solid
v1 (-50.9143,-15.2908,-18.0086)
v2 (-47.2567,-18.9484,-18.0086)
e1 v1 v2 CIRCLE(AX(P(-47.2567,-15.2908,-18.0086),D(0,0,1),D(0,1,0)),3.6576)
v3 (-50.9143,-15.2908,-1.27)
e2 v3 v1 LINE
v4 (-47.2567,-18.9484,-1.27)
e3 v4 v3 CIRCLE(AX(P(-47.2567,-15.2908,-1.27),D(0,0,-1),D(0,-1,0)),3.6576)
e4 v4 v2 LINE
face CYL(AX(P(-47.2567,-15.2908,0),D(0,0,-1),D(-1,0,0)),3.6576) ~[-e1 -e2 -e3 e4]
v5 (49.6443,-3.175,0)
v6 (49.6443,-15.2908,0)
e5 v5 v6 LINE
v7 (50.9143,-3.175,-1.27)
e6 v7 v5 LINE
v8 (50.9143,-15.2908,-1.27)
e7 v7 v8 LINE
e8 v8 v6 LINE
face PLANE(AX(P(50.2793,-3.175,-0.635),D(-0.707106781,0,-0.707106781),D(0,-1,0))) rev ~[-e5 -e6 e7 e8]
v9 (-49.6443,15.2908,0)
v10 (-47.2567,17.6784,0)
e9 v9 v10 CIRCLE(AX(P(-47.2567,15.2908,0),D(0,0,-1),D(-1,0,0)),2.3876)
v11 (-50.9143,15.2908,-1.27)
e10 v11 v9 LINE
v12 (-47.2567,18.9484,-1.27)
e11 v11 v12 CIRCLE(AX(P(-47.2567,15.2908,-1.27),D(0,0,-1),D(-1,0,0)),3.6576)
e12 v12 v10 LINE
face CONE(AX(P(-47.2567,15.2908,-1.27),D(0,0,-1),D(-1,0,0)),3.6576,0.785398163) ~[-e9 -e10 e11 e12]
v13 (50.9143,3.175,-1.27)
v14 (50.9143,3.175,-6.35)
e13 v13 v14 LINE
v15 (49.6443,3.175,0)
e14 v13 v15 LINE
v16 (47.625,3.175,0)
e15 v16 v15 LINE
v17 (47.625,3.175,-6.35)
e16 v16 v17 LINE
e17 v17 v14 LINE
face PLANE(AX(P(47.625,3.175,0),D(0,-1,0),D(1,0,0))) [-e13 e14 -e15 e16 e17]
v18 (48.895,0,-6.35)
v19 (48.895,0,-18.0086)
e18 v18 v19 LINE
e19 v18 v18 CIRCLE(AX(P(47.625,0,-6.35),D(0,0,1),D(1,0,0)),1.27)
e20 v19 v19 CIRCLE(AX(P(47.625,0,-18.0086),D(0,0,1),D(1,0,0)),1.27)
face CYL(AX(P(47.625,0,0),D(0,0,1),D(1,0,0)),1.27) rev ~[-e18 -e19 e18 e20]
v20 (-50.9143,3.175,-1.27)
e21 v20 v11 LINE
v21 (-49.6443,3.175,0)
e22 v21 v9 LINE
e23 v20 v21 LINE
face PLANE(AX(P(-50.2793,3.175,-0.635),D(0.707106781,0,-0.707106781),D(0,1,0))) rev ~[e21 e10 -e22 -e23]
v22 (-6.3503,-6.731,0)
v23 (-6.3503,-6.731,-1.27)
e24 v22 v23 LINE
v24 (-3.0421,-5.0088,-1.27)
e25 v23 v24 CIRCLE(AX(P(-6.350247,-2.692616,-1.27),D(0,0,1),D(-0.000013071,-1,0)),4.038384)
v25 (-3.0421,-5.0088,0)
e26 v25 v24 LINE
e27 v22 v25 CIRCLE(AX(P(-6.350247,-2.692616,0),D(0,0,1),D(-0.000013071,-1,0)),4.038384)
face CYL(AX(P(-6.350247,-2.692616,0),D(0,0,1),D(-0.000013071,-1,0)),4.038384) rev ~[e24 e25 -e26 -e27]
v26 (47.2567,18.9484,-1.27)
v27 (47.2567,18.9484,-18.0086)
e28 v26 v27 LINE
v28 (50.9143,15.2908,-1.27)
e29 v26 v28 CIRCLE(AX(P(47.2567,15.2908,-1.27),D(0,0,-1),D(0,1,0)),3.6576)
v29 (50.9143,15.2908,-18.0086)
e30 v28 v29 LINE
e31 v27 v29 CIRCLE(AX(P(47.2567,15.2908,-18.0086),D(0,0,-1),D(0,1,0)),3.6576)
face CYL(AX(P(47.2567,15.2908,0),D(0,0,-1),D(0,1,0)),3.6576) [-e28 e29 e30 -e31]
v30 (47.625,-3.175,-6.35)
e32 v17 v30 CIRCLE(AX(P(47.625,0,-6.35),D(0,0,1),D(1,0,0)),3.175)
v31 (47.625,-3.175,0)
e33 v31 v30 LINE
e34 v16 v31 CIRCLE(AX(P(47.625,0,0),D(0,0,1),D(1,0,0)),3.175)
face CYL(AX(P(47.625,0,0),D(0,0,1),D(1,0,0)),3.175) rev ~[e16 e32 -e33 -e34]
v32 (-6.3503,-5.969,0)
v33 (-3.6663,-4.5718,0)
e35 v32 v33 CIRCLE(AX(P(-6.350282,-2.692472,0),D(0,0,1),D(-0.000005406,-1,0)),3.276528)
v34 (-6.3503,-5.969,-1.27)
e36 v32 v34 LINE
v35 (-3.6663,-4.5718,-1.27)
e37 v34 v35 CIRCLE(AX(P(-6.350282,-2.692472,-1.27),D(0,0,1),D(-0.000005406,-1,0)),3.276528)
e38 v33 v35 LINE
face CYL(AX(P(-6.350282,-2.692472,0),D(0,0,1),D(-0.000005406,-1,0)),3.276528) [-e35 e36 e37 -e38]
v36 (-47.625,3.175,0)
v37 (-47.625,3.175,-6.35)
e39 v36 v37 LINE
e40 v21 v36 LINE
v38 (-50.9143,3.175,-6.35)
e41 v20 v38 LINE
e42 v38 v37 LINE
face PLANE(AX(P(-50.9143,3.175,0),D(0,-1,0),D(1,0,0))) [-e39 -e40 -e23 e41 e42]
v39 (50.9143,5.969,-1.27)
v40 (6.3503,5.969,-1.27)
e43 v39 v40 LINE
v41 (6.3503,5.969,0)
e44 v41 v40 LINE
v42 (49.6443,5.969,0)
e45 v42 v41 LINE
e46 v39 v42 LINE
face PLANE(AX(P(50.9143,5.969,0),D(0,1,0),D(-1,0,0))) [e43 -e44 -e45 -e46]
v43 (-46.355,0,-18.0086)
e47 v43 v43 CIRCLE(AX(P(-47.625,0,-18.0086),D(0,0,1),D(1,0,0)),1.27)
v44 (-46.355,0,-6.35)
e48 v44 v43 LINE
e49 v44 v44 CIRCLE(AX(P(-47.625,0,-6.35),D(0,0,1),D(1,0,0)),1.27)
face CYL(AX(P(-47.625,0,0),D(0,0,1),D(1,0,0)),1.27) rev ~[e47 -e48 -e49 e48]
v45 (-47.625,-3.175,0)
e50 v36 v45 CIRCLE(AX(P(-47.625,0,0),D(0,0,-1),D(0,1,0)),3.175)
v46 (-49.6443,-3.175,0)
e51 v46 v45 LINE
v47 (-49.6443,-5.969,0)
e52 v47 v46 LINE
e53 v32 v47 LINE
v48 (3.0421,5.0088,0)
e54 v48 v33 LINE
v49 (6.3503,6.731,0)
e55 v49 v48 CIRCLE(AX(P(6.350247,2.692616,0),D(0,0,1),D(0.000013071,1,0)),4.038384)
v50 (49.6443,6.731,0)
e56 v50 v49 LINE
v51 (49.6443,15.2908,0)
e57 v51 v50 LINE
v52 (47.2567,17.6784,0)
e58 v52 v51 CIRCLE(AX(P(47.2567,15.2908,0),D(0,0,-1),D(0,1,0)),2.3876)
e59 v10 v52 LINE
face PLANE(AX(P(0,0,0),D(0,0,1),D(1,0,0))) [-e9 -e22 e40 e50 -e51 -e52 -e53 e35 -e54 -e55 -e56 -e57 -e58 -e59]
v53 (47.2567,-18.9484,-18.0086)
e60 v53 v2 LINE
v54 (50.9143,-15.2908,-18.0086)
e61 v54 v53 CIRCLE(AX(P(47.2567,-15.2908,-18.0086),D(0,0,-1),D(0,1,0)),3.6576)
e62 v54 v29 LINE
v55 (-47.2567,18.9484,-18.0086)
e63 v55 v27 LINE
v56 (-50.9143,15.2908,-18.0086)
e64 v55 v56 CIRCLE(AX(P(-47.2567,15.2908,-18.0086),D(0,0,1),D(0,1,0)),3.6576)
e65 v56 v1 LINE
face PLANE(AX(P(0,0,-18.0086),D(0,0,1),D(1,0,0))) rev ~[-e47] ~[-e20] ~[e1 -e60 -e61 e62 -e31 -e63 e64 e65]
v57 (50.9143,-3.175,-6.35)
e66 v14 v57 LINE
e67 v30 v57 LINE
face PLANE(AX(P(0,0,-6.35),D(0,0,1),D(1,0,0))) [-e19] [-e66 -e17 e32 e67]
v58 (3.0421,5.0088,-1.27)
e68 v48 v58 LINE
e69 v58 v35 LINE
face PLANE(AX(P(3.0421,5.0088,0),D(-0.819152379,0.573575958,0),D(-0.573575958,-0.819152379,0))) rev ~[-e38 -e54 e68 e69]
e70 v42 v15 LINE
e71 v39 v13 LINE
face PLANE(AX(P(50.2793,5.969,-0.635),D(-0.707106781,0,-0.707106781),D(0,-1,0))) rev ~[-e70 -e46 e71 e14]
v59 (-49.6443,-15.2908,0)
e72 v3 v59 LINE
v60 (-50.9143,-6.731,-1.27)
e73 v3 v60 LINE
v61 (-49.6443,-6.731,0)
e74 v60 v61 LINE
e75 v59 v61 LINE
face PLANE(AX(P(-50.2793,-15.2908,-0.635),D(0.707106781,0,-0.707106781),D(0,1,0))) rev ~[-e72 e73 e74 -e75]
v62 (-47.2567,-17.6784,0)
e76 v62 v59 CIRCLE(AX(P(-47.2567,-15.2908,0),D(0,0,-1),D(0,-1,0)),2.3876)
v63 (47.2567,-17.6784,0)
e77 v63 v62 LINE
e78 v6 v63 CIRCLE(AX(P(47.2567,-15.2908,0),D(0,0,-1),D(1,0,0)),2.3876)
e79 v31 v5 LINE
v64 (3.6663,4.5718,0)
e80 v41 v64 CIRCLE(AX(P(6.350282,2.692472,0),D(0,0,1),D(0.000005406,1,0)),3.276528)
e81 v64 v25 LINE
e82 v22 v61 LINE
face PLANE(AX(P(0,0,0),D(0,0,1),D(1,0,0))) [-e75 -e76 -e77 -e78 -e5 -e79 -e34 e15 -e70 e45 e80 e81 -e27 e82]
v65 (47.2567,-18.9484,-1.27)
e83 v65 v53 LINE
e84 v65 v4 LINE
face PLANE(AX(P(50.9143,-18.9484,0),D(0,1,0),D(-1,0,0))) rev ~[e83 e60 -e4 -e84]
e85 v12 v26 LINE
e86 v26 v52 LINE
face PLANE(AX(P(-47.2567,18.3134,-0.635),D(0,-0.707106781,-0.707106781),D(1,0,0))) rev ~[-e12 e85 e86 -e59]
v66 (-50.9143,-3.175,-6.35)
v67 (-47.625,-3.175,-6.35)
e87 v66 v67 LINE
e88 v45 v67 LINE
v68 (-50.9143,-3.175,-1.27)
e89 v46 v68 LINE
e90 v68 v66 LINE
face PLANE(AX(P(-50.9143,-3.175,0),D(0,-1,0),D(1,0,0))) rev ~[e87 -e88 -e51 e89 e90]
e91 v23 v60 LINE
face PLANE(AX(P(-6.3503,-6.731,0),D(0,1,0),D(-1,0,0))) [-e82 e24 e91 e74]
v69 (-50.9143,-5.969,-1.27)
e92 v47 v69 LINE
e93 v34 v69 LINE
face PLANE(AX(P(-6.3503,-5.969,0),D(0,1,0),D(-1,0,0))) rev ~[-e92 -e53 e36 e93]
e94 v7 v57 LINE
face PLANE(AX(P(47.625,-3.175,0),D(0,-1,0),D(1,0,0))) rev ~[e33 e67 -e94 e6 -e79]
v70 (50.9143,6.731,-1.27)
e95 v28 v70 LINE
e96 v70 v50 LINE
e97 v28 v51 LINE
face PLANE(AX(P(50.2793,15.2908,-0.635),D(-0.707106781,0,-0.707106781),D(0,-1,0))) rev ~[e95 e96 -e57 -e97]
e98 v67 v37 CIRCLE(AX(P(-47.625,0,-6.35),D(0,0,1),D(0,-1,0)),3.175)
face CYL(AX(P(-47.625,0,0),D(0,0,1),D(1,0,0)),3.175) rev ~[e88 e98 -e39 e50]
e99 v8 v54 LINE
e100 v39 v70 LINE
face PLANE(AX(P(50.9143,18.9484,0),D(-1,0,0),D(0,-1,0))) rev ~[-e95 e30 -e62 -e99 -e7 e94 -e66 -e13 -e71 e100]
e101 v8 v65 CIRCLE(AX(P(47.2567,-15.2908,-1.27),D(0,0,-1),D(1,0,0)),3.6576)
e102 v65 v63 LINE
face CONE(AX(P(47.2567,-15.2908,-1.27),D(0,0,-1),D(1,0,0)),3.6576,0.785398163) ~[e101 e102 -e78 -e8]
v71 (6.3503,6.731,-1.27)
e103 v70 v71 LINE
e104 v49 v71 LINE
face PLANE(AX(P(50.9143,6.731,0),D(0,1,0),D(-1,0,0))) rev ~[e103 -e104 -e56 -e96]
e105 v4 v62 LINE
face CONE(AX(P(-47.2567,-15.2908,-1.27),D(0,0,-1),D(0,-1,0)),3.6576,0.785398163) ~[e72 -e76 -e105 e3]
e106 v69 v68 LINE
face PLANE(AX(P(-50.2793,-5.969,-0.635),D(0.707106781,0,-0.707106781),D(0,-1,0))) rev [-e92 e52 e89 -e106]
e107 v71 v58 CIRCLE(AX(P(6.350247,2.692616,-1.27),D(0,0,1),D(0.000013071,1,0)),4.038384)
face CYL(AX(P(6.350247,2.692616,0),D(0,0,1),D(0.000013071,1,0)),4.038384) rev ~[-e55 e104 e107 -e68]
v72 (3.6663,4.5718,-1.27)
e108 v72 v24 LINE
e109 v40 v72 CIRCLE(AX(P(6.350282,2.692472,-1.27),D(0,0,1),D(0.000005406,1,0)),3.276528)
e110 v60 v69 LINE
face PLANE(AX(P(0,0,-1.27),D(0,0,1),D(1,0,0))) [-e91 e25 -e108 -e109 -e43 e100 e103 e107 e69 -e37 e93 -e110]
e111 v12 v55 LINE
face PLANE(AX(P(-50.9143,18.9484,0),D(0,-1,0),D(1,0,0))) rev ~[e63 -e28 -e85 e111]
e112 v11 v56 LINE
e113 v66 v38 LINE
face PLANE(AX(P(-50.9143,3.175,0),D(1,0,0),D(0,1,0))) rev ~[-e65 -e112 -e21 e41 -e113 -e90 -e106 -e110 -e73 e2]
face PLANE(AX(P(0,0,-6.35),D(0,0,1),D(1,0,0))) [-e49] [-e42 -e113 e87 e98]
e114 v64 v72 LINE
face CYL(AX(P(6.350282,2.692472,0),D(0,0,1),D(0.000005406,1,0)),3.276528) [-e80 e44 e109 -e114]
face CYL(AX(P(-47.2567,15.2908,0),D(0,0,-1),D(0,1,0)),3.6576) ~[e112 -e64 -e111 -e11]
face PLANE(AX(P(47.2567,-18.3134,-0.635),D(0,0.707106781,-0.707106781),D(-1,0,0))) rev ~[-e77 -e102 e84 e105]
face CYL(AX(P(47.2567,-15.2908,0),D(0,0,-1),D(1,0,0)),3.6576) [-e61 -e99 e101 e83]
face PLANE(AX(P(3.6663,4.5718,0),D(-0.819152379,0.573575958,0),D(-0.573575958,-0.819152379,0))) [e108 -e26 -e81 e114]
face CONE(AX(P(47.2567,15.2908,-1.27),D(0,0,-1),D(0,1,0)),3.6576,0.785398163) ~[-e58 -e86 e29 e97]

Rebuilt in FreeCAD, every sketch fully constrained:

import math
import FreeCAD as App
import Part
import Sketcher
from FreeCAD import Vector
Q = App.Units.Quantity


def edges_at(feature, points):
    """Names of the edges that pass closest to the given points."""
    edges = feature.Shape.Edges
    near = lambda p: min(range(len(edges)), key=lambda i: edges[i].distToShape(Part.Vertex(*p))[0])
    return sorted({f"Edge{near(p) + 1}" for p in points})

doc = App.newDocument("Part")
params = doc.addObject("Spreadsheet::Sheet", "Params")
for row, (alias, value) in enumerate([
    ("sketch1_width", "4.009 in"),
    ("sketch1_height", "1.492 in"),
    ("pad1_length", "0.709 in"),
    ("fillet_radius", "0.144 in"),
    ("sketch2_radius", "0.159 in"),
    ("sketch2_radius2", "0.129 in"),
    ("pocket1_length", "0.05 in"),
    ("sketch3_diameter", "0.1 in"),
    ("sketch4_diameter", "0.1 in"),
    ("sketch4_radius", "0.125 in"),
    ("pocket3_length", "0.25 in"),
    ("chamfer_size", "0.05 in"),
], start=1):
    params.set(f"A{row}", alias)
    params.set(f"B{row}", "=" + value)
    params.setAlias(f"B{row}", alias)

body = doc.addObject("PartDesign::Body", "Body")

sketch1 = body.newObject("Sketcher::SketchObject", "Sketch")
sketch1.AttachmentSupport = (doc.getObject("XY_Plane"), [""])
sketch1.MapMode = "FlatFace"
sketch1.addGeometry([
    Part.LineSegment(Vector(51, 19, 0), Vector(-51, 19, 0)),
    Part.LineSegment(Vector(-51, 19, 0), Vector(-51, -19, 0)),
    Part.LineSegment(Vector(-51, -19, 0), Vector(51, -19, 0)),
    Part.LineSegment(Vector(51, -19, 0), Vector(51, 19, 0)),
], False)
sketch1.addConstraint([
    Sketcher.Constraint("Coincident", 0, 2, 1, 1),
    Sketcher.Constraint("Coincident", 1, 2, 2, 1),
    Sketcher.Constraint("Coincident", 2, 2, 3, 1),
    Sketcher.Constraint("Coincident", 3, 2, 0, 1),
    Sketcher.Constraint("Horizontal", 0),
    Sketcher.Constraint("Vertical", 1),
    Sketcher.Constraint("Horizontal", 2),
    Sketcher.Constraint("Vertical", 3),
    Sketcher.Constraint("Symmetric", 0, 2, 2, 2, -1, 1),
    Sketcher.Constraint("DistanceX", 0, 2, 0, 1, Q("4.009 in")),
    Sketcher.Constraint("DistanceY", 1, 2, 1, 1, Q("1.492 in")),
])
sketch1.setExpression("Constraints[9]", "Params.sketch1_width")
sketch1.setExpression("Constraints[10]", "Params.sketch1_height")
pad1 = body.newObject("PartDesign::Pad", "Pad")
pad1.Profile = sketch1
pad1.setExpression("Length", "Params.pad1_length")
pad1.Reversed = True
doc.recompute()

fillet = body.newObject("PartDesign::Fillet", "Fillet")
fillet.Base = (pad1, edges_at(pad1, [
    (-50.914, 18.948, -9.004),
    (-50.914, -18.948, -9.004),
    (50.914, 18.948, -9.004),
    (50.914, -18.948, -9.004),
]))
fillet.setExpression("Radius", "Params.fillet_radius")

sketch2 = body.newObject("Sketcher::SketchObject", "Sketch001")
sketch2.AttachmentSupport = (doc.getObject("XY_Plane"), [""])
sketch2.MapMode = "FlatFace"
sketch2.addGeometry([
    Part.LineSegment(Vector(50.9, 6.7, 0), Vector(6.4, 6.7, 0)),
    Part.ArcOfCircle(Part.Circle(Vector(6.4, 2.7, 0), Vector(0, 0, 1), 4), math.radians(90), math.radians(145)),
    Part.LineSegment(Vector(3, 5, 0), Vector(-3.7, -4.6, 0)),
    Part.ArcOfCircle(Part.Circle(Vector(-6.4, -2.7, 0), Vector(0, 0, 1), 3.3), math.radians(-90), math.radians(-35)),
    Part.LineSegment(Vector(-6.4, -6, 0), Vector(-50.9, -6, 0)),
    Part.LineSegment(Vector(-50.9, -6, 0), Vector(-50.9, -6.7, 0)),
    Part.LineSegment(Vector(-50.9, -6.7, 0), Vector(-6.4, -6.7, 0)),
    Part.ArcOfCircle(Part.Circle(Vector(-6.4, -2.7, 0), Vector(0, 0, 1), 4), math.radians(-90), math.radians(-35)),
    Part.LineSegment(Vector(-3, -5, 0), Vector(3.7, 4.6, 0)),
    Part.ArcOfCircle(Part.Circle(Vector(6.4, 2.7, 0), Vector(0, 0, 1), 3.3), math.radians(90), math.radians(145)),
    Part.LineSegment(Vector(6.4, 6, 0), Vector(50.9, 6, 0)),
    Part.LineSegment(Vector(50.9, 6, 0), Vector(50.9, 6.7, 0)),
], False)
sketch2.addConstraint([
    Sketcher.Constraint("Tangent", 0, 2, 1, 1),
    Sketcher.Constraint("Tangent", 1, 2, 2, 1),
    Sketcher.Constraint("Tangent", 2, 2, 3, 2),
    Sketcher.Constraint("Tangent", 3, 1, 4, 1),
    Sketcher.Constraint("Coincident", 4, 2, 5, 1),
    Sketcher.Constraint("Coincident", 5, 2, 6, 1),
    Sketcher.Constraint("Tangent", 6, 2, 7, 1),
    Sketcher.Constraint("Tangent", 7, 2, 8, 1),
    Sketcher.Constraint("Tangent", 8, 2, 9, 2),
    Sketcher.Constraint("Tangent", 9, 1, 10, 1),
    Sketcher.Constraint("Coincident", 10, 2, 11, 1),
    Sketcher.Constraint("Coincident", 11, 2, 0, 1),
    Sketcher.Constraint("Horizontal", 0),
    Sketcher.Constraint("Horizontal", 4),
    Sketcher.Constraint("Vertical", 5),
    Sketcher.Constraint("Horizontal", 6),
    Sketcher.Constraint("Horizontal", 10),
    Sketcher.Constraint("Vertical", 11),
    Sketcher.Constraint("Coincident", 7, 3, 3, 3),
    Sketcher.Constraint("Coincident", 9, 3, 1, 3),
    Sketcher.Constraint("Equal", 1, 7),
    Sketcher.Constraint("Equal", 3, 9),
    Sketcher.Constraint("Symmetric", 1, 3, 3, 3, -1, 1),
    Sketcher.Constraint("Equal", 0, 4),
    Sketcher.Constraint("Angle", 8, Q("55 deg")),
    Sketcher.Constraint("DistanceX", -1, 1, 1, 3, Q("0.25 in")),
    Sketcher.Constraint("Radius", 1, Q("0.159 in")),
    Sketcher.Constraint("Radius", 3, Q("0.129 in")),
    Sketcher.Constraint("DistanceX", 0, 2, 0, 1, Q("1.7545 in")),
])
sketch2.setExpression("Constraints[26]", "Params.sketch2_radius")
sketch2.setExpression("Constraints[27]", "Params.sketch2_radius2")
pocket1 = body.newObject("PartDesign::Pocket", "Pocket")
pocket1.Profile = sketch2
pocket1.setExpression("Length", "Params.pocket1_length")

sketch3 = body.newObject("Sketcher::SketchObject", "Sketch002")
sketch3.AttachmentSupport = (doc.getObject("XY_Plane"), [""])
sketch3.MapMode = "FlatFace"
sketch3.addGeometry([
    Part.Circle(Vector(-47.6, 0, 0), Vector(0, 0, 1), 1.3),
    Part.Circle(Vector(47.6, 0, 0), Vector(0, 0, 1), 1.3),
], False)
sketch3.addConstraint([
    Sketcher.Constraint("Equal", 0, 1),
    Sketcher.Constraint("Symmetric", 0, 3, 1, 3, -1, 1),
    Sketcher.Constraint("PointOnObject", 0, 3, -1),
    Sketcher.Constraint("Diameter", 0, Q("0.1 in")),
    Sketcher.Constraint("DistanceX", 0, 3, 1, 3, Q("3.75 in")),
])
sketch3.setExpression("Constraints[3]", "Params.sketch3_diameter")
pocket2 = body.newObject("PartDesign::Pocket", "Pocket001")
pocket2.Profile = sketch3
pocket2.Type = "ThroughAll"

sketch4 = body.newObject("Sketcher::SketchObject", "Sketch003")
sketch4.AttachmentSupport = (doc.getObject("XY_Plane"), [""])
sketch4.MapMode = "FlatFace"
sketch4.addGeometry([
    Part.LineSegment(Vector(-47.6, 3.2, 0), Vector(-50.9, 3.2, 0)),
    Part.LineSegment(Vector(-50.9, 3.2, 0), Vector(-50.9, -3.2, 0)),
    Part.LineSegment(Vector(-50.9, -3.2, 0), Vector(-47.6, -3.2, 0)),
    Part.ArcOfCircle(Part.Circle(Vector(-47.6, 0, 0), Vector(0, 0, 1), 3.2), math.radians(-90), math.radians(90)),
    Part.Circle(Vector(-47.6, 0, 0), Vector(0, 0, 1), 1.3),
    Part.LineSegment(Vector(50.9, -3.2, 0), Vector(50.9, 3.2, 0)),
    Part.LineSegment(Vector(50.9, 3.2, 0), Vector(47.6, 3.2, 0)),
    Part.ArcOfCircle(Part.Circle(Vector(47.6, 0, 0), Vector(0, 0, 1), 3.2), math.radians(90), math.radians(270)),
    Part.LineSegment(Vector(47.6, -3.2, 0), Vector(50.9, -3.2, 0)),
], False)
sketch4.addConstraint([
    Sketcher.Constraint("Coincident", 0, 2, 1, 1),
    Sketcher.Constraint("Coincident", 1, 2, 2, 1),
    Sketcher.Constraint("Tangent", 2, 2, 3, 1),
    Sketcher.Constraint("Tangent", 3, 2, 0, 1),
    Sketcher.Constraint("Coincident", 5, 2, 6, 1),
    Sketcher.Constraint("Tangent", 6, 2, 7, 1),
    Sketcher.Constraint("Tangent", 7, 2, 8, 1),
    Sketcher.Constraint("Coincident", 8, 2, 5, 1),
    Sketcher.Constraint("Horizontal", 0),
    Sketcher.Constraint("Vertical", 1),
    Sketcher.Constraint("Horizontal", 2),
    Sketcher.Constraint("Vertical", 5),
    Sketcher.Constraint("Horizontal", 6),
    Sketcher.Constraint("Horizontal", 8),
    Sketcher.Constraint("Coincident", 4, 3, 3, 3),
    Sketcher.Constraint("Equal", 3, 7),
    Sketcher.Constraint("Symmetric", 3, 3, 7, 3, -1, 1),
    Sketcher.Constraint("Symmetric", 0, 2, 5, 2, -2),
    Sketcher.Constraint("Diameter", 4, Q("0.1 in")),
    Sketcher.Constraint("Radius", 3, Q("0.125 in")),
    Sketcher.Constraint("DistanceX", 3, 3, 7, 3, Q("3.75 in")),
    Sketcher.Constraint("DistanceX", 0, 2, 0, 1, Q("0.1295 in")),
])
sketch4.setExpression("Constraints[18]", "Params.sketch4_diameter")
sketch4.setExpression("Constraints[19]", "Params.sketch4_radius")
pocket3 = body.newObject("PartDesign::Pocket", "Pocket002")
pocket3.Profile = sketch4
pocket3.setExpression("Length", "Params.pocket3_length")
doc.recompute()

chamfer = body.newObject("PartDesign::Chamfer", "Chamfer")
chamfer.Base = (pocket3, edges_at(pocket3, [
    (0, 18.948, 0),
    (-49.843, 17.877, 0),
    (-50.914, 9.233, 0),
    (49.843, 17.877, 0),
    (50.914, 11.011, 0),
    (0, -18.948, 0),
    (49.843, -17.877, 0),
    (50.914, -9.233, 0),
    (-49.843, -17.877, 0),
    (-50.914, -11.011, 0),
    (-50.914, -4.572, 0),
    (50.914, 4.572, 0),
]))
chamfer.setExpression("Size", "Params.chamfer_size")

doc.recompute()
